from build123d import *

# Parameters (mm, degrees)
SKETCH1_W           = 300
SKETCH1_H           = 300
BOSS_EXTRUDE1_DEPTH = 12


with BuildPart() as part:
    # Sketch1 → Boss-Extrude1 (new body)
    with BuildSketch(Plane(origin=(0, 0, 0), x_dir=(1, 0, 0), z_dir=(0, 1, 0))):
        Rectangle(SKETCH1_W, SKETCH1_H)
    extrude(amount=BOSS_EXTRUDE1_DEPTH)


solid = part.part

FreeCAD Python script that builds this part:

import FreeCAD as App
import Part
import Sketcher
from FreeCAD import Vector


def add_polygon(sketch, points):
    """Adds a closed chain of lines whose ends are joined by coincident constraints."""
    first, n = sketch.GeometryCount, len(points)
    for a, b in zip(points, points[1:] + points[:1]):
        sketch.addGeometry(Part.LineSegment(App.Vector(*a, 0), App.Vector(*b, 0)), False)
    for i in range(n):
        sketch.addConstraint(Sketcher.Constraint("Coincident", first + i, 2, first + (i + 1) % n, 1))

doc = App.newDocument("Part")
body = doc.addObject("PartDesign::Body", "Body")

sketch1 = doc.addObject("Sketcher::SketchObject", "Sketch")
body.addObject(sketch1)
sketch1.AttachmentSupport = (doc.XZ_Plane, [""])
sketch1.MapMode = "FlatFace"
add_polygon(sketch1, [(-150, -150), (-150, 150), (150, 150), (150, -150)])
sketch1.addConstraint(Sketcher.Constraint("Vertical", 0))
sketch1.addConstraint(Sketcher.Constraint("Horizontal", 1))
sketch1.addConstraint(Sketcher.Constraint("Vertical", 2))
sketch1.addConstraint(Sketcher.Constraint("Horizontal", 3))
sketch1.addConstraint(Sketcher.Constraint("Symmetric", 0, 2, 2, 2, -1, 1))
sketch1.addConstraint(Sketcher.Constraint("Equal", 3, 0))
sketch1.addConstraint(Sketcher.Constraint("DistanceX", 1, 1, 1, 2, 300.0))
pad1 = doc.addObject("PartDesign::Pad", "Pad")
body.addObject(pad1)
pad1.Profile = sketch1
pad1.Length = 12
pad1.Reversed = True

doc.recompute()
